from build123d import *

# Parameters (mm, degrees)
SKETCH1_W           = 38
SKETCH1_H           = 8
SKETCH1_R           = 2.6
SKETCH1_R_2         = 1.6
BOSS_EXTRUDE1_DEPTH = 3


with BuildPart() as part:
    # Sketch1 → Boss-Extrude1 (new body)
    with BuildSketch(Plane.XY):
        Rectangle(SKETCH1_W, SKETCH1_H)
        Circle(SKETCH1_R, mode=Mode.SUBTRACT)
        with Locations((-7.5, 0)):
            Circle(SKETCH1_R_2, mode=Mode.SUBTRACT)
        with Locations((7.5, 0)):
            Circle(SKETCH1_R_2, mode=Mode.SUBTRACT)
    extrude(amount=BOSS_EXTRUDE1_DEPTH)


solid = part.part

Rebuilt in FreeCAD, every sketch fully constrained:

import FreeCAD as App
import Part
import Sketcher
from FreeCAD import Vector


def add_polygon(sketch, points):
    """Adds a closed chain of lines whose ends are joined by coincident constraints."""
    first, n = sketch.GeometryCount, len(points)
    for a, b in zip(points, points[1:] + points[:1]):
        sketch.addGeometry(Part.LineSegment(App.Vector(*a, 0), App.Vector(*b, 0)), False)
    for i in range(n):
        sketch.addConstraint(Sketcher.Constraint("Coincident", first + i, 2, first + (i + 1) % n, 1))

doc = App.newDocument("Part")
params = doc.addObject("Spreadsheet::Sheet", "Params")
for row, (alias, value) in enumerate([
    ("sketch1_diameter", "3.2 mm"),
    ("sketch1_diameter2", "5.2 mm"),
    ("sketch1_width", "38 mm"),
    ("sketch1_height", "8 mm"),
    ("pad1_length", "3 mm"),
], start=1):
    params.set(f"A{row}", alias)
    params.set(f"B{row}", "=" + value)
    params.setAlias(f"B{row}", alias)

body = doc.addObject("PartDesign::Body", "Body")

# Sketch on XY plane
sketch1 = doc.addObject("Sketcher::SketchObject", "Sketch")
body.addObject(sketch1)
sketch1.AttachmentSupport = (doc.XY_Plane, [""])
sketch1.MapMode = "FlatFace"
add_polygon(sketch1, [(-19, 4), (-19, -4), (19, -4), (19, 4)])  # lines 0-3
sketch1.addGeometry(Part.Circle(Vector(-7.5, 0, 0), Vector(0, 0, 1), 1.6), False)  # 4
sketch1.addGeometry(Part.Circle(Vector(0, 0, 0), Vector(0, 0, 1), 2.6), False)  # 5
sketch1.addGeometry(Part.Circle(Vector(7.5, 0, 0), Vector(0, 0, 1), 1.6), False)  # 6
sketch1.addConstraint(Sketcher.Constraint("Vertical", 0))
sketch1.addConstraint(Sketcher.Constraint("Horizontal", 1))
sketch1.addConstraint(Sketcher.Constraint("Vertical", 2))
sketch1.addConstraint(Sketcher.Constraint("Horizontal", 3))
sketch1.addConstraint(Sketcher.Constraint("Coincident", 5, 3, -1, 1))
sketch1.addConstraint(Sketcher.Constraint("Equal", 4, 6))
sketch1.addConstraint(Sketcher.Constraint("Symmetric", 4, 3, 6, 3, -1, 1))
sketch1.addConstraint(Sketcher.Constraint("Symmetric", 0, 2, 2, 2, -1, 1))
sketch1.addConstraint(Sketcher.Constraint("PointOnObject", 4, 3, -1))
sketch1.addConstraint(Sketcher.Constraint("Diameter", 4, 3.2))
sketch1.addConstraint(Sketcher.Constraint("Diameter", 5, 5.2))
sketch1.addConstraint(Sketcher.Constraint("DistanceX", 1, 1, 1, 2, 38.0))
sketch1.addConstraint(Sketcher.Constraint("DistanceY", 0, 2, 0, 1, 8.0))
sketch1.addConstraint(Sketcher.Constraint("DistanceX", 4, 3, 6, 3, 15.0))
sketch1.setExpression("Constraints[13]", "Params.sketch1_diameter")
sketch1.setExpression("Constraints[14]", "Params.sketch1_diameter2")
sketch1.setExpression("Constraints[15]", "Params.sketch1_width")
sketch1.setExpression("Constraints[16]", "Params.sketch1_height")
pad1 = doc.addObject("PartDesign::Pad", "Pad")
body.addObject(pad1)
pad1.Profile = sketch1
pad1.setExpression("Length", "Params.pad1_length")

doc.recompute()
